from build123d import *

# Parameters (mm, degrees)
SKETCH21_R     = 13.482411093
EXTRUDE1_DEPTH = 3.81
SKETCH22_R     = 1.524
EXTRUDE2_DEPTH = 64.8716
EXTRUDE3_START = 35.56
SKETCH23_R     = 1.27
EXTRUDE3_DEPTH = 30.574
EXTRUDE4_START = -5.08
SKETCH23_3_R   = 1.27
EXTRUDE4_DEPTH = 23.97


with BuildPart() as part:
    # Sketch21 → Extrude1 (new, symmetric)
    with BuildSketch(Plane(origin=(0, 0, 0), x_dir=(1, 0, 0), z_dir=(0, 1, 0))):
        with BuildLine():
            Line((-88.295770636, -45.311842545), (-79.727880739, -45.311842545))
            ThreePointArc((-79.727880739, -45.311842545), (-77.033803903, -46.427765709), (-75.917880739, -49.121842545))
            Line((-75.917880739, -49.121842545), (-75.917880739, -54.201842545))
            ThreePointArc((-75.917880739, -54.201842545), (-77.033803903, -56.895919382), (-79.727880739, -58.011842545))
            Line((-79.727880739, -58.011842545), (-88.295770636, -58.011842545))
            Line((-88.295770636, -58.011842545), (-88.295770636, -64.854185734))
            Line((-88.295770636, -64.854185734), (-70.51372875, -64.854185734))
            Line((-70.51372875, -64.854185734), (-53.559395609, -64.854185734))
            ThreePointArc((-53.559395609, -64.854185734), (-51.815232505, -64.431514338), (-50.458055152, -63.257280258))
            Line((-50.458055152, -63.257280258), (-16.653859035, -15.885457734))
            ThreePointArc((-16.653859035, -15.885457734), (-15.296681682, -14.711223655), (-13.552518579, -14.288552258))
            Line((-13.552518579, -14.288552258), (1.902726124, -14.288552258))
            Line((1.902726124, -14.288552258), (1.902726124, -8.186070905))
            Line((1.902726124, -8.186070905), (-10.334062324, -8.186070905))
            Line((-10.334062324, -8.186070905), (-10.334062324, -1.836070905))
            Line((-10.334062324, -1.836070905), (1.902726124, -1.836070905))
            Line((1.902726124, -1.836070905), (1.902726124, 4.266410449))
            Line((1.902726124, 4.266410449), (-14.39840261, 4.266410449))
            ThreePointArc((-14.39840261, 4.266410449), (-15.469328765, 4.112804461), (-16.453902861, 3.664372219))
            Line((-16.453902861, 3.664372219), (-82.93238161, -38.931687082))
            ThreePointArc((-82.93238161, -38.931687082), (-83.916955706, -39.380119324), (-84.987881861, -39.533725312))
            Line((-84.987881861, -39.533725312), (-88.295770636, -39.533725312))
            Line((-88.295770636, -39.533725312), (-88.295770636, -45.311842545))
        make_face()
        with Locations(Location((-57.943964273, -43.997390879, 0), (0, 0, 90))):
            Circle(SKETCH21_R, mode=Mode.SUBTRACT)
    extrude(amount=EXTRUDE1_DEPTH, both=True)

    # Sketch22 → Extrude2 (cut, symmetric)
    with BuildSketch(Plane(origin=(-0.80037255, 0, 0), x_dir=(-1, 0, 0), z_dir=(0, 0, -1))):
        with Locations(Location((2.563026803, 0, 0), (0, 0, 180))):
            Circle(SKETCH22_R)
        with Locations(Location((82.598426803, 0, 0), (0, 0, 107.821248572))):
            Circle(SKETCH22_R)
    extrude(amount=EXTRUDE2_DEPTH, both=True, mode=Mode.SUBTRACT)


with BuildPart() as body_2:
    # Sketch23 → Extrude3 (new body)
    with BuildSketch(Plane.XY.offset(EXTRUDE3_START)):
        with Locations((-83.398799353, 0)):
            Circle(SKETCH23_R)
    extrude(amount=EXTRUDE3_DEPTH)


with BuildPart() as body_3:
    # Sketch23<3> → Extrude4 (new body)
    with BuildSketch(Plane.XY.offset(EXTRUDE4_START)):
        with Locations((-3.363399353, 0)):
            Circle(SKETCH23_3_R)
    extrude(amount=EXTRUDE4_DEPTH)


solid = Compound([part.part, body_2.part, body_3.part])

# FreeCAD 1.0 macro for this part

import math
import FreeCAD as App
import Part
import Sketcher

V = App.Vector
Q = App.Units.Quantity

doc = App.newDocument("Part")
body = doc.addObject("PartDesign::Body", "Body")

# Sketch on XZ plane
sketch1 = body.newObject("Sketcher::SketchObject", "Sketch")
sketch1.AttachmentSupport = (doc.getObject("XZ_Plane"), [""])
sketch1.MapMode = "FlatFace"
sketch1.addGeometry([
    Part.LineSegment(V(-88.295771, 45.311843, 0), V(-79.727881, 45.311843, 0)),  # 0
    Part.ArcOfCircle(Part.Circle(V(-79.727881, 49.121843, 0), V(0, 0, 1), 3.81), math.radians(-90), math.radians(0)),  # 1
    Part.LineSegment(V(-75.917881, 49.121843, 0), V(-75.917881, 54.201843, 0)),  # 2
    Part.ArcOfCircle(Part.Circle(V(-79.727881, 54.201843, 0), V(0, 0, 1), 3.81), math.radians(0), math.radians(90)),  # 3
    Part.LineSegment(V(-79.727881, 58.011843, 0), V(-88.295771, 58.011843, 0)),  # 4
    Part.LineSegment(V(-88.295771, 58.011843, 0), V(-88.295771, 64.854186, 0)),  # 5
    Part.LineSegment(V(-88.295771, 64.854186, 0), V(-53.559396, 64.854186, 0)),  # 6
    Part.ArcOfCircle(Part.Circle(V(-53.559396, 61.044186, 0), V(0, 0, 1), 3.81), math.radians(35.511384), math.radians(90)),  # 7
    Part.LineSegment(V(-50.458055, 63.25728, 0), V(-16.653859, 15.885458, 0)),  # 8
    Part.ArcOfCircle(Part.Circle(V(-13.552519, 18.098552, 0), V(0, 0, 1), 3.81), math.radians(-144.488616), math.radians(-90)),  # 9
    Part.LineSegment(V(-13.552519, 14.288552, 0), V(1.902726, 14.288552, 0)),  # 10
    Part.LineSegment(V(1.902726, 14.288552, 0), V(1.902726, 8.186071, 0)),  # 11
    Part.LineSegment(V(1.902726, 8.186071, 0), V(-10.334062, 8.186071, 0)),  # 12
    Part.LineSegment(V(-10.334062, 8.186071, 0), V(-10.334062, 1.836071, 0)),  # 13
    Part.LineSegment(V(-10.334062, 1.836071, 0), V(1.902726, 1.836071, 0)),  # 14
    Part.LineSegment(V(1.902726, 1.836071, 0), V(1.902726, -4.26641, 0)),  # 15
    Part.LineSegment(V(1.902726, -4.26641, 0), V(-14.398403, -4.26641, 0)),  # 16
    Part.ArcOfCircle(Part.Circle(V(-14.398403, -0.45641, 0), V(0, 0, 1), 3.81), math.radians(-122.649702), math.radians(-90)),  # 17
    Part.LineSegment(V(-16.453903, -3.664372, 0), V(-82.932382, 38.931687, 0)),  # 18
    Part.ArcOfCircle(Part.Circle(V(-84.987882, 35.723725, 0), V(0, 0, 1), 3.81), math.radians(57.350298), math.radians(90)),  # 19
    Part.LineSegment(V(-84.987882, 39.533725, 0), V(-88.295771, 39.533725, 0)),  # 20
    Part.LineSegment(V(-88.295771, 39.533725, 0), V(-88.295771, 45.311843, 0)),  # 21
    Part.Circle(V(-57.943964, 43.997391, 0), V(0, 0, 1), 13.482411),  # 22
], False)
sketch1.addConstraint([
    Sketcher.Constraint("Tangent", 0, 2, 1, 1),
    Sketcher.Constraint("Tangent", 1, 2, 2, 1),
    Sketcher.Constraint("Tangent", 2, 2, 3, 1),
    Sketcher.Constraint("Tangent", 3, 2, 4, 1),
    Sketcher.Constraint("Coincident", 4, 2, 5, 1),
    Sketcher.Constraint("Coincident", 5, 2, 6, 1),
    Sketcher.Constraint("Tangent", 6, 2, 7, 2),
    Sketcher.Constraint("Tangent", 7, 1, 8, 1),
    Sketcher.Constraint("Tangent", 8, 2, 9, 1),
    Sketcher.Constraint("Tangent", 9, 2, 10, 1),
    Sketcher.Constraint("Coincident", 10, 2, 11, 1),
    Sketcher.Constraint("Coincident", 11, 2, 12, 1),
    Sketcher.Constraint("Coincident", 12, 2, 13, 1),
    Sketcher.Constraint("Coincident", 13, 2, 14, 1),
    Sketcher.Constraint("Coincident", 14, 2, 15, 1),
    Sketcher.Constraint("Coincident", 15, 2, 16, 1),
    Sketcher.Constraint("Tangent", 16, 2, 17, 2),
    Sketcher.Constraint("Tangent", 17, 1, 18, 1),
    Sketcher.Constraint("Tangent", 18, 2, 19, 1),
    Sketcher.Constraint("Tangent", 19, 2, 20, 1),
    Sketcher.Constraint("Coincident", 20, 2, 21, 1),
    Sketcher.Constraint("Coincident", 21, 2, 0, 1),
    Sketcher.Constraint("Horizontal", 0),
    Sketcher.Constraint("Vertical", 2),
    Sketcher.Constraint("Horizontal", 4),
    Sketcher.Constraint("Vertical", 5),
    Sketcher.Constraint("Horizontal", 6),
    Sketcher.Constraint("Horizontal", 10),
    Sketcher.Constraint("Vertical", 11),
    Sketcher.Constraint("Horizontal", 12),
    Sketcher.Constraint("Vertical", 13),
    Sketcher.Constraint("Horizontal", 14),
    Sketcher.Constraint("Vertical", 15),
    Sketcher.Constraint("Horizontal", 16),
    Sketcher.Constraint("Horizontal", 20),
    Sketcher.Constraint("Vertical", 21),
    Sketcher.Constraint("Equal", 1, 3),
    Sketcher.Constraint("Equal", 3, 7),
    Sketcher.Constraint("Equal", 7, 9),
    Sketcher.Constraint("Equal", 9, 17),
    Sketcher.Constraint("Equal", 17, 19),
    Sketcher.Constraint("Vertical", 11, 2, 14, 2),
    Sketcher.Constraint("Vertical", 5, 2, 20, 2),
    Sketcher.Constraint("Equal", 11, 15),
    Sketcher.Constraint("Radius", 1, Q("0.15 in")),
    Sketcher.Constraint("DistanceY", 2, 1, 2, 2, Q("0.2 in")),
    Sketcher.Constraint("DistanceY", 13, 2, 13, 1, Q("0.25 in")),
    Sketcher.Constraint("Diameter", 22, Q("26.964822 mm")),
    Sketcher.Constraint("DistanceX", 6, 2, 7, 1, Q("0.1221 in")),
    Sketcher.Constraint("DistanceX", 0, 1, 0, 2, Q("8.56789 mm")),
    Sketcher.Constraint("DistanceX", 12, 2, 12, 1, Q("12.236788 mm")),
    Sketcher.Constraint("DistanceX", 16, 2, 16, 1, Q("16.301129 mm")),
    Sketcher.Constraint("DistanceX", 20, 2, 20, 1, Q("3.307889 mm")),
    Sketcher.Constraint("DistanceY", 11, 2, 11, 1, Q("6.102481 mm")),
    Sketcher.Constraint("DistanceX", 17, 1, 16, 2, Q("2.0555 mm")),
    Sketcher.Constraint("DistanceX", 6, 1, 6, 2, Q("34.736375 mm")),
    Sketcher.Constraint("DistanceX", 10, 1, 10, 2, Q("15.455245 mm")),
    Sketcher.Constraint("DistanceY", 5, 1, 5, 2, Q("6.842343 mm")),
    Sketcher.Constraint("DistanceY", 21, 1, 21, 2, Q("5.778117 mm")),
    Sketcher.Constraint("DistanceX", 1, 3, -1, 1, Q("79.727881 mm")),
    Sketcher.Constraint("DistanceY", 17, 3, -1, 1, Q("0.45641 mm")),
    Sketcher.Constraint("DistanceY", -1, 1, 22, 3, Q("43.997391 mm")),
    Sketcher.Constraint("DistanceX", 22, 3, 7, 3, Q("4.384569 mm")),
])
pad1 = body.newObject("PartDesign::Pad", "Pad")
pad1.Profile = sketch1
pad1.Length = Q("0.3 in")
pad1.Midplane = True

# Sketch on XY plane
sketch2 = body.newObject("Sketcher::SketchObject", "Sketch001")
sketch2.AttachmentSupport = (doc.getObject("XY_Plane"), [""])
sketch2.MapMode = "FlatFace"
sketch2.addGeometry([
    Part.Circle(V(-3.363399, 0, 0), V(0, 0, 1), 1.524),
    Part.Circle(V(-83.398799, 0, 0), V(0, 0, 1), 1.524),
], False)
sketch2.addConstraint([
    Sketcher.Constraint("Equal", 0, 1),
    Sketcher.Constraint("PointOnObject", 0, 3, -1),
    Sketcher.Constraint("PointOnObject", 1, 3, -1),
    Sketcher.Constraint("Diameter", 0, Q("0.12 in")),
    Sketcher.Constraint("DistanceX", 1, 3, 0, 3, Q("3.151 in")),
    Sketcher.Constraint("DistanceX", 0, 3, -1, 1, Q("3.363399 mm")),
])
pocket1 = body.newObject("PartDesign::Pocket", "Pocket")
pocket1.Profile = sketch2
pocket1.Length = Q("5.108 in")
pocket1.Midplane = True
body2 = doc.addObject("PartDesign::Body", "Body001")

# Sketch on XY plane
sketch3 = body2.newObject("Sketcher::SketchObject", "Sketch002")
sketch3.AttachmentSupport = (doc.getObject("XY_Plane001"), [""])
sketch3.MapMode = "FlatFace"
sketch3.AttachmentOffset = App.Placement(V(0, 0, 1.4 * 25.4), App.Rotation())
sketch3.addGeometry(Part.Circle(V(-83.398799, 0, 0), V(0, 0, 1), 1.27), False)
sketch3.addConstraint([
    Sketcher.Constraint("PointOnObject", 0, 3, -1),
    Sketcher.Constraint("Diameter", 0, Q("0.1 in")),
    Sketcher.Constraint("DistanceX", 0, 3, -1, 1, Q("83.398799 mm")),
])
pad2 = body2.newObject("PartDesign::Pad", "Pad001")
pad2.Profile = sketch3
pad2.Length = 30.574
body3 = doc.addObject("PartDesign::Body", "Body002")

# Sketch on XY plane
sketch4 = body3.newObject("Sketcher::SketchObject", "Sketch003")
sketch4.AttachmentSupport = (doc.getObject("XY_Plane002"), [""])
sketch4.MapMode = "FlatFace"
sketch4.AttachmentOffset = App.Placement(V(0, 0, -0.2 * 25.4), App.Rotation())
sketch4.addGeometry(Part.Circle(V(-3.363399, 0, 0), V(0, 0, 1), 1.27), False)
sketch4.addConstraint([
    Sketcher.Constraint("PointOnObject", 0, 3, -1),
    Sketcher.Constraint("Diameter", 0, Q("0.1 in")),
    Sketcher.Constraint("DistanceX", 0, 3, -1, 1, Q("3.363399 mm")),
])
pad3 = body3.newObject("PartDesign::Pad", "Pad002")
pad3.Profile = sketch4
pad3.Length = 23.97

doc.recompute()
